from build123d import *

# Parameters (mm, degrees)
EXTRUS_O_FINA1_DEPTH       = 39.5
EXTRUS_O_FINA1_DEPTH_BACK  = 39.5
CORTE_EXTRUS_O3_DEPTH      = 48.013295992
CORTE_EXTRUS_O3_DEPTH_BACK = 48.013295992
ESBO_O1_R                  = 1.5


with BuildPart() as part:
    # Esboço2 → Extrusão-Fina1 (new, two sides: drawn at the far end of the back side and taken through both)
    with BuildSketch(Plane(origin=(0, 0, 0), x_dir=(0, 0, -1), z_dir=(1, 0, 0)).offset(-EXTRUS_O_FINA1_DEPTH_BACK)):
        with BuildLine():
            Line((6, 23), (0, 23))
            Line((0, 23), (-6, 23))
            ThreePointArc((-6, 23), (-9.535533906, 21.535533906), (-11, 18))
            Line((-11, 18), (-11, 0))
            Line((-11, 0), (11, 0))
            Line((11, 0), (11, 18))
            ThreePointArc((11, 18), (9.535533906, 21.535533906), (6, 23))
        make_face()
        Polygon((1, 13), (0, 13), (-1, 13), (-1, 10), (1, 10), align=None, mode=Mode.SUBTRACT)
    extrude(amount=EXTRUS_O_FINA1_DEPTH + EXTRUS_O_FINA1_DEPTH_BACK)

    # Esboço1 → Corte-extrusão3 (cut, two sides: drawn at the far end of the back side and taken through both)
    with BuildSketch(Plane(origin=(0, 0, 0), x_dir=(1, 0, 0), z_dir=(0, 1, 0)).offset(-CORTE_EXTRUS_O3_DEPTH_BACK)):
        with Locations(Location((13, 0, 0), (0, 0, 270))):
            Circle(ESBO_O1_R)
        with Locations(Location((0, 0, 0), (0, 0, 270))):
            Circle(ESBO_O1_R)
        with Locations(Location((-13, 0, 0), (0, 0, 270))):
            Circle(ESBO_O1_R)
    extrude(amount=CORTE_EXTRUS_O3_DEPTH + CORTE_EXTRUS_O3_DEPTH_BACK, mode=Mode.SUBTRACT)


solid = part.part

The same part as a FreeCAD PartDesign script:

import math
import FreeCAD as App
import Part
import Sketcher
from FreeCAD import Vector
Q = App.Units.Quantity

doc = App.newDocument("Part")
body = doc.addObject("PartDesign::Body", "Body")

sketch1 = body.newObject("Sketcher::SketchObject", "Sketch")
sketch1.AttachmentSupport = (doc.getObject("YZ_Plane"), [""])
sketch1.MapMode = "FlatFace"
sketch1.addGeometry(Part.LineSegment(Vector(23, -6, 0), Vector(23, 6, 0)), False)
sketch1.addGeometry(Part.ArcOfCircle(Part.Circle(Vector(18, 6, 0), Vector(0, 0, 1), 5), math.radians(0), math.radians(90)), False)
sketch1.addGeometry(Part.LineSegment(Vector(18, 11, 0), Vector(0, 11, 0)), False)
sketch1.addGeometry(Part.LineSegment(Vector(0, 11, 0), Vector(0, -11, 0)), False)
sketch1.addGeometry(Part.LineSegment(Vector(0, -11, 0), Vector(18, -11, 0)), False)
sketch1.addGeometry(Part.ArcOfCircle(Part.Circle(Vector(18, -6, 0), Vector(0, 0, 1), 5), math.radians(-90), math.radians(0)), False)
sketch1.addGeometry(Part.LineSegment(Vector(13, 1, 0), Vector(13, -1, 0)), False)
sketch1.addGeometry(Part.LineSegment(Vector(13, -1, 0), Vector(10, -1, 0)), False)
sketch1.addGeometry(Part.LineSegment(Vector(10, -1, 0), Vector(10, 1, 0)), False)
sketch1.addGeometry(Part.LineSegment(Vector(10, 1, 0), Vector(13, 1, 0)), False)
sketch1.addConstraint(Sketcher.Constraint("Tangent", 0, 2, 1, 1))
sketch1.addConstraint(Sketcher.Constraint("Tangent", 1, 2, 2, 1))
sketch1.addConstraint(Sketcher.Constraint("Coincident", 2, 2, 3, 1))
sketch1.addConstraint(Sketcher.Constraint("Coincident", 3, 2, 4, 1))
sketch1.addConstraint(Sketcher.Constraint("Tangent", 4, 2, 5, 1))
sketch1.addConstraint(Sketcher.Constraint("Tangent", 5, 2, 0, 1))
sketch1.addConstraint(Sketcher.Constraint("Coincident", 6, 2, 7, 1))
sketch1.addConstraint(Sketcher.Constraint("Coincident", 7, 2, 8, 1))
sketch1.addConstraint(Sketcher.Constraint("Coincident", 8, 2, 9, 1))
sketch1.addConstraint(Sketcher.Constraint("Coincident", 9, 2, 6, 1))
sketch1.addConstraint(Sketcher.Constraint("Vertical", 0))
sketch1.addConstraint(Sketcher.Constraint("Horizontal", 2))
sketch1.addConstraint(Sketcher.Constraint("Vertical", 3))
sketch1.addConstraint(Sketcher.Constraint("Horizontal", 4))
sketch1.addConstraint(Sketcher.Constraint("Vertical", 6))
sketch1.addConstraint(Sketcher.Constraint("Horizontal", 7))
sketch1.addConstraint(Sketcher.Constraint("Vertical", 8))
sketch1.addConstraint(Sketcher.Constraint("Horizontal", 9))
sketch1.addConstraint(Sketcher.Constraint("Equal", 1, 5))
sketch1.addConstraint(Sketcher.Constraint("Symmetric", 2, 2, 3, 2, -1, 1))
sketch1.addConstraint(Sketcher.Constraint("Radius", 1, Q("5 mm")))
sketch1.addConstraint(Sketcher.Constraint("DistanceX", 2, 2, 2, 1, Q("18 mm")))
sketch1.addConstraint(Sketcher.Constraint("DistanceX", 7, 2, 7, 1, Q("3 mm")))
sketch1.addConstraint(Sketcher.Constraint("DistanceY", 0, 1, 0, 2, Q("12 mm")))
sketch1.addConstraint(Sketcher.Constraint("DistanceY", 6, 2, 6, 1, Q("2 mm")))
sketch1.addConstraint(Sketcher.Constraint("DistanceX", -1, 1, 6, 2, Q("13 mm")))
sketch1.addConstraint(Sketcher.Constraint("DistanceY", 6, 2, -1, 1, Q("1 mm")))
pad1 = body.newObject("PartDesign::Pad", "Pad")
pad1.Profile = sketch1
pad1.Type = "TwoLengths"
pad1.Length = 39.5
pad1.Length2 = 39.5

sketch2 = body.newObject("Sketcher::SketchObject", "Sketch001")
sketch2.AttachmentSupport = (doc.getObject("XZ_Plane"), [""])
sketch2.MapMode = "FlatFace"
sketch2.addGeometry(Part.Circle(Vector(13, 0, 0), Vector(0, 0, 1), 1.5), False)
sketch2.addGeometry(Part.Circle(Vector(0, 0, 0), Vector(0, 0, 1), 1.5), False)
sketch2.addGeometry(Part.Circle(Vector(-13, 0, 0), Vector(0, 0, 1), 1.5), False)
sketch2.addConstraint(Sketcher.Constraint("Coincident", 1, 3, -1, 1))
sketch2.addConstraint(Sketcher.Constraint("Equal", 0, 1))
sketch2.addConstraint(Sketcher.Constraint("Equal", 1, 2))
sketch2.addConstraint(Sketcher.Constraint("Symmetric", 0, 3, 2, 3, -1, 1))
sketch2.addConstraint(Sketcher.Constraint("PointOnObject", 0, 3, -1))
sketch2.addConstraint(Sketcher.Constraint("Diameter", 0, Q("3 mm")))
sketch2.addConstraint(Sketcher.Constraint("DistanceX", -1, 1, 0, 3, Q("13 mm")))
pocket1 = body.newObject("PartDesign::Pocket", "Pocket")
pocket1.Profile = sketch2
pocket1.Type = "ThroughAll"
pocket1.Midplane = True

doc.recompute()
